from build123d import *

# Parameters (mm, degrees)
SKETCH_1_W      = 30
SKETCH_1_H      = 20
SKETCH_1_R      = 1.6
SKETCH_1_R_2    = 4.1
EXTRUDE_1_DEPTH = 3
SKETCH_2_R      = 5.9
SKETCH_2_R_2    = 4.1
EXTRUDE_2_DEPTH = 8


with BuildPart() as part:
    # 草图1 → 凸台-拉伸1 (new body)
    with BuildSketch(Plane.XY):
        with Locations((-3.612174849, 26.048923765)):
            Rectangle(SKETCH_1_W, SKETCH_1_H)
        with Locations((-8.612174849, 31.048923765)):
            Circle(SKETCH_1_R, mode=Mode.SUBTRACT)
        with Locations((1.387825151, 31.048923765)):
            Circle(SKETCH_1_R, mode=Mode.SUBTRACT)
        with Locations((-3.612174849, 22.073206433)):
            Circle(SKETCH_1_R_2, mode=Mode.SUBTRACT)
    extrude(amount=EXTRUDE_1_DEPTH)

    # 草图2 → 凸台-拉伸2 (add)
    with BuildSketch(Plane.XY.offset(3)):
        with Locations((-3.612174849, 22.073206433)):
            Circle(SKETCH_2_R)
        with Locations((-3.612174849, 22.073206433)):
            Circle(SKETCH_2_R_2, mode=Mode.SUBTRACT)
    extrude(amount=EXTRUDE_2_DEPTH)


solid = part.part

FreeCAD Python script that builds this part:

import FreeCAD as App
import Part
import Sketcher

V = App.Vector
Q = App.Units.Quantity


def add_polygon(sketch, points):
    """Adds a closed chain of lines whose ends are joined by coincident constraints."""
    first, n = sketch.GeometryCount, len(points)
    for a, b in zip(points, points[1:] + points[:1]):
        sketch.addGeometry(Part.LineSegment(App.Vector(*a, 0), App.Vector(*b, 0)), False)
    for i in range(n):
        sketch.addConstraint(Sketcher.Constraint("Coincident", first + i, 2, first + (i + 1) % n, 1))

doc = App.newDocument("Part")
body = doc.addObject("PartDesign::Body", "Body")

sketch1 = doc.addObject("Sketcher::SketchObject", "Sketch")
body.addObject(sketch1)
sketch1.AttachmentSupport = (doc.XY_Plane, [""])
sketch1.MapMode = "FlatFace"
add_polygon(sketch1, [(-18.6, 36), (-18.6, 16), (11.4, 16), (11.4, 36)])
sketch1.addGeometry(Part.Circle(V(-3.6, 22.1, 0), V(0, 0, 1), 4.1), False)
sketch1.addGeometry(Part.Circle(V(-8.6, 31, 0), V(0, 0, 1), 1.6), False)
sketch1.addGeometry(Part.Circle(V(1.4, 31, 0), V(0, 0, 1), 1.6), False)
sketch1.addConstraint([
    Sketcher.Constraint("Vertical", 0),
    Sketcher.Constraint("Horizontal", 1),
    Sketcher.Constraint("Vertical", 2),
    Sketcher.Constraint("Horizontal", 3),
    Sketcher.Constraint("Equal", 5, 6),
    Sketcher.Constraint("Horizontal", 5, 3, 6, 3),
    Sketcher.Constraint("Diameter", 4, Q("8.2 mm")),
    Sketcher.Constraint("Diameter", 5, Q("3.2 mm")),
    Sketcher.Constraint("DistanceX", 1, 1, 1, 2, Q("30 mm")),
    Sketcher.Constraint("DistanceY", 0, 2, 0, 1, Q("20 mm")),
    Sketcher.Constraint("DistanceX", 5, 3, 4, 3, Q("5 mm")),
    Sketcher.Constraint("DistanceX", 5, 3, 6, 3, Q("10 mm")),
    Sketcher.Constraint("DistanceX", 0, 2, 4, 3, Q("15 mm")),
    Sketcher.Constraint("DistanceY", 0, 2, 5, 3, Q("15 mm")),
    Sketcher.Constraint("DistanceX", 4, 3, -1, 1, Q("3.612175 mm")),
    Sketcher.Constraint("DistanceY", -1, 1, 4, 3, Q("22.073206 mm")),
    Sketcher.Constraint("DistanceY", -1, 1, 5, 3, Q("31.048924 mm")),
])
pad1 = doc.addObject("PartDesign::Pad", "Pad")
body.addObject(pad1)
pad1.Profile = sketch1
pad1.Length = 3

sketch2 = doc.addObject("Sketcher::SketchObject", "Sketch001")
body.addObject(sketch2)
sketch2.AttachmentSupport = (doc.XY_Plane, [""])
sketch2.MapMode = "FlatFace"
sketch2.AttachmentOffset = App.Placement(V(0, 0, 3), App.Rotation())
sketch2.addGeometry([
    Part.Circle(V(-3.6, 22.1, 0), V(0, 0, 1), 5.9),
    Part.Circle(V(-3.6, 22.1, 0), V(0, 0, 1), 4.1),
], False)
sketch2.addConstraint([
    Sketcher.Constraint("Coincident", 1, 3, 0, 3),
    Sketcher.Constraint("Diameter", 0, Q("11.8 mm")),
    Sketcher.Constraint("Diameter", 1, Q("8.2 mm")),
    Sketcher.Constraint("DistanceX", 0, 3, -1, 1, Q("3.612175 mm")),
    Sketcher.Constraint("DistanceY", -1, 1, 0, 3, Q("22.073206 mm")),
])
pad2 = doc.addObject("PartDesign::Pad", "Pad001")
body.addObject(pad2)
pad2.Profile = sketch2
pad2.Length = 8

doc.recompute()
